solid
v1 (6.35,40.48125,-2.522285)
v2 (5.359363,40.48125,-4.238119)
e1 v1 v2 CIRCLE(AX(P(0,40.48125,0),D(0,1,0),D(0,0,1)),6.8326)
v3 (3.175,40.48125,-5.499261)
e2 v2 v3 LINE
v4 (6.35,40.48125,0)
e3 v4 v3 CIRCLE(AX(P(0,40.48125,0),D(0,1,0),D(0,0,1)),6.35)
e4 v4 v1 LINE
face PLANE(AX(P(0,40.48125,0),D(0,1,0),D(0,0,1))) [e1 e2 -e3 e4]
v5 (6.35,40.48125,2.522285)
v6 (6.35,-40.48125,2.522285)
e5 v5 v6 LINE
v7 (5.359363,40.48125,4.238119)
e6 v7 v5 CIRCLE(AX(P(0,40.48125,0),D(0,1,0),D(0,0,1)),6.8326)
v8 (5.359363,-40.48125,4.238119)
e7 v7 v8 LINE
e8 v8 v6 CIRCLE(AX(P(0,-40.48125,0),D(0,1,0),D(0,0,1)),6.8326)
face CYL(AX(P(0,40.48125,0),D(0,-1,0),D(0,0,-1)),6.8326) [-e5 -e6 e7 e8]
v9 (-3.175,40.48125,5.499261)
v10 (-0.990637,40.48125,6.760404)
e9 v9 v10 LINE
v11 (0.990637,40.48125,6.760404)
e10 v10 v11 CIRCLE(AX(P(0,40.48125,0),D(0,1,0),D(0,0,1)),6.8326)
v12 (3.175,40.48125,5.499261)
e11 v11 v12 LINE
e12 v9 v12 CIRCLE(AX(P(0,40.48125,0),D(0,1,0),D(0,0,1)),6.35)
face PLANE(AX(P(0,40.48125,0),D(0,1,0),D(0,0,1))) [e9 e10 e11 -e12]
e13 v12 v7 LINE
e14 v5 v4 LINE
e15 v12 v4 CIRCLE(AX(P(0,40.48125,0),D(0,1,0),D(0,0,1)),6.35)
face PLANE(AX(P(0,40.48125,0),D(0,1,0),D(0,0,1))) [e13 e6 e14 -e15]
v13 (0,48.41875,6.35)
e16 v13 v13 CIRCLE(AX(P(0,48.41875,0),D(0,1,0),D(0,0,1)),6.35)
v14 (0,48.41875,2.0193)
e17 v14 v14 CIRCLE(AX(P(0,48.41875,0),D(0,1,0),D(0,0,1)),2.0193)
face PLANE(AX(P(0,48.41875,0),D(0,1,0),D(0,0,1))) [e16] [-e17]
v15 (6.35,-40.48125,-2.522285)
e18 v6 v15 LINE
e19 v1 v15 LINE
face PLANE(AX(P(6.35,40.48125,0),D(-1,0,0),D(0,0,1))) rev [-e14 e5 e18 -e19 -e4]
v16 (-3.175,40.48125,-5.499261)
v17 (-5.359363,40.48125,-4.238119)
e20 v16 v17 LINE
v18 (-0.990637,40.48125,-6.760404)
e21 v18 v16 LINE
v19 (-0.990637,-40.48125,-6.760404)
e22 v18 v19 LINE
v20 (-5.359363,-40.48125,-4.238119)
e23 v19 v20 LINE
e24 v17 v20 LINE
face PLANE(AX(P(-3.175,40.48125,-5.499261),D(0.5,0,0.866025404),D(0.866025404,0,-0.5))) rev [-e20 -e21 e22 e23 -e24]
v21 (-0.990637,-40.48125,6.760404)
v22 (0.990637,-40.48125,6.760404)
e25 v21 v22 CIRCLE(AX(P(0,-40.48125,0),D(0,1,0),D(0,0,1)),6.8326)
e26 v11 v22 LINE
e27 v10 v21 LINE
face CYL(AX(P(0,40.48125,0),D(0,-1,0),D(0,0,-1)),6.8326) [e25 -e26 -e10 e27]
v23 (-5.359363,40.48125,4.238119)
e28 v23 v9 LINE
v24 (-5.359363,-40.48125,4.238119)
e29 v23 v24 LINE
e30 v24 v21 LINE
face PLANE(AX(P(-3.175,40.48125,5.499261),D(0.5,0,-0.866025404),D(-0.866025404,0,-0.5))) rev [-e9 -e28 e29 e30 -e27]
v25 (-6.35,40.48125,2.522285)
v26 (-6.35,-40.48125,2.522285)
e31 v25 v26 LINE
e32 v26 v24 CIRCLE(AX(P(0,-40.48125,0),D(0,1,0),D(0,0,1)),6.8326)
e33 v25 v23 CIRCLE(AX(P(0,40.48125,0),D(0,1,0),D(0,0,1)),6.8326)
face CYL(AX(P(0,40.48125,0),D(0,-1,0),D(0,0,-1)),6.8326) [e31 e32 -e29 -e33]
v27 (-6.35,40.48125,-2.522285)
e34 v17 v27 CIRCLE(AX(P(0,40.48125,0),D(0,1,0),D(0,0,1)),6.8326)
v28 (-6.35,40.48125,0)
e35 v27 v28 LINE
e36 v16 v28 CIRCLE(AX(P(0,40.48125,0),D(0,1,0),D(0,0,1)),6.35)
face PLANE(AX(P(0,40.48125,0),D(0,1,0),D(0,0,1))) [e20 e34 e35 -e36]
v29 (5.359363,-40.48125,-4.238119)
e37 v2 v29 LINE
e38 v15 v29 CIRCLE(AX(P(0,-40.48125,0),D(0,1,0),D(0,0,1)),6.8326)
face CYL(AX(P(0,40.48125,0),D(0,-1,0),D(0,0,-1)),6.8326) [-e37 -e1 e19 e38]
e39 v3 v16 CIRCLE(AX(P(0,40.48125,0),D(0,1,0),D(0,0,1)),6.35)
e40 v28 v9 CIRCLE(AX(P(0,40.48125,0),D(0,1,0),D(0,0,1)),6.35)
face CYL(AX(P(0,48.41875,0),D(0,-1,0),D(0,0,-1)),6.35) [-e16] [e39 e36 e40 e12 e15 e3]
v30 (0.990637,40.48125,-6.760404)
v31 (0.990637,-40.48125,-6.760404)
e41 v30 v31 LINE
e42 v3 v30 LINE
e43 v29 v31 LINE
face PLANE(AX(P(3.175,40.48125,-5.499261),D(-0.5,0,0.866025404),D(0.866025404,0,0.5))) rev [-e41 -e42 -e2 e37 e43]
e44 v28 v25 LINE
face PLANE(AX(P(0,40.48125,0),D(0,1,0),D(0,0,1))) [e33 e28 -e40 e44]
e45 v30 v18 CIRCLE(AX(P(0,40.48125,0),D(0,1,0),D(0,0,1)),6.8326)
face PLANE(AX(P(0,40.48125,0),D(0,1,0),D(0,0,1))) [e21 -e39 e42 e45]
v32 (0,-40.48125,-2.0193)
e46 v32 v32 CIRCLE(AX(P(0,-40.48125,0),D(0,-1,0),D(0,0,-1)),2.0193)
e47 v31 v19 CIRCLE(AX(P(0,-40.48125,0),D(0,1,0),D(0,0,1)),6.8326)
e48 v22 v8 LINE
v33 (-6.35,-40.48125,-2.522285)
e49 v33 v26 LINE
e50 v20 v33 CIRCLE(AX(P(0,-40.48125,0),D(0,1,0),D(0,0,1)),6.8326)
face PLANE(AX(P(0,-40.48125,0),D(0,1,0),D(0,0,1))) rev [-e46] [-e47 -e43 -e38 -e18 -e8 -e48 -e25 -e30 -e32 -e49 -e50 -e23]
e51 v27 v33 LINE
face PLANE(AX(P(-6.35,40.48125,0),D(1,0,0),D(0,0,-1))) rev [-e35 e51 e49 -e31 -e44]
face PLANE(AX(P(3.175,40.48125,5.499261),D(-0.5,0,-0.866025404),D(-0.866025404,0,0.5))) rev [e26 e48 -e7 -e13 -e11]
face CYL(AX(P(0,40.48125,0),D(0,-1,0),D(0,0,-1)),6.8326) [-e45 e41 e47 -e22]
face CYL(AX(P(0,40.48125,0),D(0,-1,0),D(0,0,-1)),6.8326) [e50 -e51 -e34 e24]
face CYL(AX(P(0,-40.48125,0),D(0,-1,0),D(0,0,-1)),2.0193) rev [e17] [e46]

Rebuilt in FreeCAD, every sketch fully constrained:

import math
import FreeCAD as App
import Part
import Sketcher
Q = App.Units.Quantity

doc = App.newDocument("Part")
body = doc.addObject("PartDesign::Body", "Body")

# Sketch on XZ plane
sketch1 = body.newObject("Sketcher::SketchObject", "Sketch")
sketch1.AttachmentSupport = (doc.getObject("XZ_Plane"), [""])
sketch1.MapMode = "FlatFace"
sketch1.addGeometry(Part.ArcOfCircle(Part.Circle(App.Vector(0, 0, 0), App.Vector(0, 0, 1), 6.8326), math.radians(-98.336516), math.radians(-81.663484)), False)
sketch1.addGeometry(Part.LineSegment(App.Vector(-0.990637, -6.760404, 0), App.Vector(-5.359363, -4.238119, 0)), False)
sketch1.addGeometry(Part.ArcOfCircle(Part.Circle(App.Vector(0, 0, 0), App.Vector(0, 0, 1), 6.8326), math.radians(-158.336516), math.radians(-141.663484)), False)
sketch1.addGeometry(Part.LineSegment(App.Vector(-6.35, -2.522285, 0), App.Vector(-6.35, 2.522285, 0)), False)
sketch1.addGeometry(Part.ArcOfCircle(Part.Circle(App.Vector(0, 0, 0), App.Vector(0, 0, 1), 6.8326), math.radians(141.663484), math.radians(158.336516)), False)
sketch1.addGeometry(Part.LineSegment(App.Vector(-5.359363, 4.238119, 0), App.Vector(-0.990637, 6.760404, 0)), False)
sketch1.addGeometry(Part.ArcOfCircle(Part.Circle(App.Vector(0, 0, 0), App.Vector(0, 0, 1), 6.8326), math.radians(81.663484), math.radians(98.336516)), False)
sketch1.addGeometry(Part.LineSegment(App.Vector(0.990637, 6.760404, 0), App.Vector(5.359363, 4.238119, 0)), False)
sketch1.addGeometry(Part.ArcOfCircle(Part.Circle(App.Vector(0, 0, 0), App.Vector(0, 0, 1), 6.8326), math.radians(21.663484), math.radians(38.336516)), False)
sketch1.addGeometry(Part.LineSegment(App.Vector(6.35, 2.522285, 0), App.Vector(6.35, -2.522285, 0)), False)
sketch1.addGeometry(Part.ArcOfCircle(Part.Circle(App.Vector(0, 0, 0), App.Vector(0, 0, 1), 6.8326), math.radians(-38.336516), math.radians(-21.663484)), False)
sketch1.addGeometry(Part.LineSegment(App.Vector(5.359363, -4.238119, 0), App.Vector(0.990637, -6.760404, 0)), False)
sketch1.addConstraint(Sketcher.Constraint("Coincident", 0, 1, 1, 1))
sketch1.addConstraint(Sketcher.Constraint("Coincident", 1, 2, 2, 2))
sketch1.addConstraint(Sketcher.Constraint("Coincident", 2, 1, 3, 1))
sketch1.addConstraint(Sketcher.Constraint("Coincident", 3, 2, 4, 2))
sketch1.addConstraint(Sketcher.Constraint("Coincident", 4, 1, 5, 1))
sketch1.addConstraint(Sketcher.Constraint("Coincident", 5, 2, 6, 2))
sketch1.addConstraint(Sketcher.Constraint("Coincident", 6, 1, 7, 1))
sketch1.addConstraint(Sketcher.Constraint("Coincident", 7, 2, 8, 2))
sketch1.addConstraint(Sketcher.Constraint("Coincident", 8, 1, 9, 1))
sketch1.addConstraint(Sketcher.Constraint("Coincident", 9, 2, 10, 2))
sketch1.addConstraint(Sketcher.Constraint("Coincident", 10, 1, 11, 1))
sketch1.addConstraint(Sketcher.Constraint("Coincident", 11, 2, 0, 2))
sketch1.addConstraint(Sketcher.Constraint("Vertical", 3))
sketch1.addConstraint(Sketcher.Constraint("Vertical", 9))
sketch1.addConstraint(Sketcher.Constraint("Coincident", 0, 3, -1, 1))
sketch1.addConstraint(Sketcher.Constraint("Coincident", 2, 3, -1, 1))
sketch1.addConstraint(Sketcher.Constraint("Coincident", 4, 3, -1, 1))
sketch1.addConstraint(Sketcher.Constraint("Coincident", 6, 3, -1, 1))
sketch1.addConstraint(Sketcher.Constraint("Coincident", 8, 3, -1, 1))
sketch1.addConstraint(Sketcher.Constraint("Coincident", 10, 3, -1, 1))
sketch1.addConstraint(Sketcher.Constraint("Equal", 0, 2))
sketch1.addConstraint(Sketcher.Constraint("Equal", 2, 4))
sketch1.addConstraint(Sketcher.Constraint("Equal", 4, 6))
sketch1.addConstraint(Sketcher.Constraint("Equal", 6, 8))
sketch1.addConstraint(Sketcher.Constraint("Equal", 8, 10))
sketch1.addConstraint(Sketcher.Constraint("Parallel", 1, 7))
sketch1.addConstraint(Sketcher.Constraint("Parallel", 5, 11))
sketch1.addConstraint(Sketcher.Constraint("Horizontal", 5, 2, 6, 1))
sketch1.addConstraint(Sketcher.Constraint("Horizontal", 4, 1, 7, 2))
sketch1.addConstraint(Sketcher.Constraint("Horizontal", 3, 2, 8, 1))
sketch1.addConstraint(Sketcher.Constraint("Horizontal", 1, 2, 10, 1))
sketch1.addConstraint(Sketcher.Constraint("Vertical", 1, 2, 4, 1))
sketch1.addConstraint(Sketcher.Constraint("Angle", 1, Q("150 deg")))
sketch1.addConstraint(Sketcher.Constraint("Radius", 0, Q("0.269 in")))
sketch1.addConstraint(Sketcher.Constraint("DistanceX", 2, 1, -1, 1, Q("0.25 in")))
sketch1.addConstraint(Sketcher.Constraint("DistanceX", 4, 1, 6, 1, Q("0.25 in")))
pad1 = body.newObject("PartDesign::Pad", "Pad")
pad1.Profile = sketch1
pad1.Length = Q("3.1875 in")
pad1.Midplane = True

# Sketch on XZ plane
sketch2 = body.newObject("Sketcher::SketchObject", "Sketch001")
sketch2.AttachmentSupport = (doc.getObject("XZ_Plane"), [""])
sketch2.MapMode = "FlatFace"
sketch2.AttachmentOffset = App.Placement(App.Vector(0, 0, -1.59375 * 25.4), App.Rotation())
sketch2.addGeometry(Part.Circle(App.Vector(0, 0, 0), App.Vector(0, 0, 1), 6.35), False)
sketch2.addConstraint(Sketcher.Constraint("Coincident", 0, 3, -1, 1))
sketch2.addConstraint(Sketcher.Constraint("Diameter", 0, Q("0.5 in")))
pad2 = body.newObject("PartDesign::Pad", "Pad001")
pad2.Profile = sketch2
pad2.Length = Q("0.3125 in")
pad2.Reversed = True

# Sketch on XZ plane
sketch3 = body.newObject("Sketcher::SketchObject", "Sketch002")
sketch3.AttachmentSupport = (doc.getObject("XZ_Plane"), [""])
sketch3.MapMode = "FlatFace"
sketch3.AttachmentOffset = App.Placement(App.Vector(0, 0, 1.59375 * 25.4), App.Rotation())
sketch3.addGeometry(Part.Circle(App.Vector(0, 0, 0), App.Vector(0, 0, 1), 2.0193), False)
sketch3.addConstraint(Sketcher.Constraint("Coincident", 0, 3, -1, 1))
sketch3.addConstraint(Sketcher.Constraint("Diameter", 0, Q("0.159 in")))
doc.recompute()
hole = body.newObject("PartDesign::Hole", "Hole")
hole.Profile = sketch3
hole.ThreadType = "None"
hole.Diameter = Q("0.159 in")
hole.DepthType = "Dimension"
hole.Depth = Q("0.4736 in")
hole.DrillPoint = "Angled"
hole.DrillPointAngle = 118

# Sketch on XZ plane
sketch4 = body.newObject("Sketcher::SketchObject", "Sketch003")
sketch4.AttachmentSupport = (doc.getObject("XZ_Plane"), [""])
sketch4.MapMode = "FlatFace"
sketch4.AttachmentOffset = App.Placement(App.Vector(0, 0, 1.59375 * 25.4), App.Rotation())
sketch4.addGeometry(Part.Circle(App.Vector(0, 0, 0), App.Vector(0, 0, 1), 2.0193), False)
sketch4.addConstraint(Sketcher.Constraint("Coincident", 0, 3, -1, 1))
sketch4.addConstraint(Sketcher.Constraint("Diameter", 0, Q("0.159 in")))
pocket1 = body.newObject("PartDesign::Pocket", "Pocket")
pocket1.Profile = sketch4
pocket1.Type = "ThroughAll"

doc.recompute()
